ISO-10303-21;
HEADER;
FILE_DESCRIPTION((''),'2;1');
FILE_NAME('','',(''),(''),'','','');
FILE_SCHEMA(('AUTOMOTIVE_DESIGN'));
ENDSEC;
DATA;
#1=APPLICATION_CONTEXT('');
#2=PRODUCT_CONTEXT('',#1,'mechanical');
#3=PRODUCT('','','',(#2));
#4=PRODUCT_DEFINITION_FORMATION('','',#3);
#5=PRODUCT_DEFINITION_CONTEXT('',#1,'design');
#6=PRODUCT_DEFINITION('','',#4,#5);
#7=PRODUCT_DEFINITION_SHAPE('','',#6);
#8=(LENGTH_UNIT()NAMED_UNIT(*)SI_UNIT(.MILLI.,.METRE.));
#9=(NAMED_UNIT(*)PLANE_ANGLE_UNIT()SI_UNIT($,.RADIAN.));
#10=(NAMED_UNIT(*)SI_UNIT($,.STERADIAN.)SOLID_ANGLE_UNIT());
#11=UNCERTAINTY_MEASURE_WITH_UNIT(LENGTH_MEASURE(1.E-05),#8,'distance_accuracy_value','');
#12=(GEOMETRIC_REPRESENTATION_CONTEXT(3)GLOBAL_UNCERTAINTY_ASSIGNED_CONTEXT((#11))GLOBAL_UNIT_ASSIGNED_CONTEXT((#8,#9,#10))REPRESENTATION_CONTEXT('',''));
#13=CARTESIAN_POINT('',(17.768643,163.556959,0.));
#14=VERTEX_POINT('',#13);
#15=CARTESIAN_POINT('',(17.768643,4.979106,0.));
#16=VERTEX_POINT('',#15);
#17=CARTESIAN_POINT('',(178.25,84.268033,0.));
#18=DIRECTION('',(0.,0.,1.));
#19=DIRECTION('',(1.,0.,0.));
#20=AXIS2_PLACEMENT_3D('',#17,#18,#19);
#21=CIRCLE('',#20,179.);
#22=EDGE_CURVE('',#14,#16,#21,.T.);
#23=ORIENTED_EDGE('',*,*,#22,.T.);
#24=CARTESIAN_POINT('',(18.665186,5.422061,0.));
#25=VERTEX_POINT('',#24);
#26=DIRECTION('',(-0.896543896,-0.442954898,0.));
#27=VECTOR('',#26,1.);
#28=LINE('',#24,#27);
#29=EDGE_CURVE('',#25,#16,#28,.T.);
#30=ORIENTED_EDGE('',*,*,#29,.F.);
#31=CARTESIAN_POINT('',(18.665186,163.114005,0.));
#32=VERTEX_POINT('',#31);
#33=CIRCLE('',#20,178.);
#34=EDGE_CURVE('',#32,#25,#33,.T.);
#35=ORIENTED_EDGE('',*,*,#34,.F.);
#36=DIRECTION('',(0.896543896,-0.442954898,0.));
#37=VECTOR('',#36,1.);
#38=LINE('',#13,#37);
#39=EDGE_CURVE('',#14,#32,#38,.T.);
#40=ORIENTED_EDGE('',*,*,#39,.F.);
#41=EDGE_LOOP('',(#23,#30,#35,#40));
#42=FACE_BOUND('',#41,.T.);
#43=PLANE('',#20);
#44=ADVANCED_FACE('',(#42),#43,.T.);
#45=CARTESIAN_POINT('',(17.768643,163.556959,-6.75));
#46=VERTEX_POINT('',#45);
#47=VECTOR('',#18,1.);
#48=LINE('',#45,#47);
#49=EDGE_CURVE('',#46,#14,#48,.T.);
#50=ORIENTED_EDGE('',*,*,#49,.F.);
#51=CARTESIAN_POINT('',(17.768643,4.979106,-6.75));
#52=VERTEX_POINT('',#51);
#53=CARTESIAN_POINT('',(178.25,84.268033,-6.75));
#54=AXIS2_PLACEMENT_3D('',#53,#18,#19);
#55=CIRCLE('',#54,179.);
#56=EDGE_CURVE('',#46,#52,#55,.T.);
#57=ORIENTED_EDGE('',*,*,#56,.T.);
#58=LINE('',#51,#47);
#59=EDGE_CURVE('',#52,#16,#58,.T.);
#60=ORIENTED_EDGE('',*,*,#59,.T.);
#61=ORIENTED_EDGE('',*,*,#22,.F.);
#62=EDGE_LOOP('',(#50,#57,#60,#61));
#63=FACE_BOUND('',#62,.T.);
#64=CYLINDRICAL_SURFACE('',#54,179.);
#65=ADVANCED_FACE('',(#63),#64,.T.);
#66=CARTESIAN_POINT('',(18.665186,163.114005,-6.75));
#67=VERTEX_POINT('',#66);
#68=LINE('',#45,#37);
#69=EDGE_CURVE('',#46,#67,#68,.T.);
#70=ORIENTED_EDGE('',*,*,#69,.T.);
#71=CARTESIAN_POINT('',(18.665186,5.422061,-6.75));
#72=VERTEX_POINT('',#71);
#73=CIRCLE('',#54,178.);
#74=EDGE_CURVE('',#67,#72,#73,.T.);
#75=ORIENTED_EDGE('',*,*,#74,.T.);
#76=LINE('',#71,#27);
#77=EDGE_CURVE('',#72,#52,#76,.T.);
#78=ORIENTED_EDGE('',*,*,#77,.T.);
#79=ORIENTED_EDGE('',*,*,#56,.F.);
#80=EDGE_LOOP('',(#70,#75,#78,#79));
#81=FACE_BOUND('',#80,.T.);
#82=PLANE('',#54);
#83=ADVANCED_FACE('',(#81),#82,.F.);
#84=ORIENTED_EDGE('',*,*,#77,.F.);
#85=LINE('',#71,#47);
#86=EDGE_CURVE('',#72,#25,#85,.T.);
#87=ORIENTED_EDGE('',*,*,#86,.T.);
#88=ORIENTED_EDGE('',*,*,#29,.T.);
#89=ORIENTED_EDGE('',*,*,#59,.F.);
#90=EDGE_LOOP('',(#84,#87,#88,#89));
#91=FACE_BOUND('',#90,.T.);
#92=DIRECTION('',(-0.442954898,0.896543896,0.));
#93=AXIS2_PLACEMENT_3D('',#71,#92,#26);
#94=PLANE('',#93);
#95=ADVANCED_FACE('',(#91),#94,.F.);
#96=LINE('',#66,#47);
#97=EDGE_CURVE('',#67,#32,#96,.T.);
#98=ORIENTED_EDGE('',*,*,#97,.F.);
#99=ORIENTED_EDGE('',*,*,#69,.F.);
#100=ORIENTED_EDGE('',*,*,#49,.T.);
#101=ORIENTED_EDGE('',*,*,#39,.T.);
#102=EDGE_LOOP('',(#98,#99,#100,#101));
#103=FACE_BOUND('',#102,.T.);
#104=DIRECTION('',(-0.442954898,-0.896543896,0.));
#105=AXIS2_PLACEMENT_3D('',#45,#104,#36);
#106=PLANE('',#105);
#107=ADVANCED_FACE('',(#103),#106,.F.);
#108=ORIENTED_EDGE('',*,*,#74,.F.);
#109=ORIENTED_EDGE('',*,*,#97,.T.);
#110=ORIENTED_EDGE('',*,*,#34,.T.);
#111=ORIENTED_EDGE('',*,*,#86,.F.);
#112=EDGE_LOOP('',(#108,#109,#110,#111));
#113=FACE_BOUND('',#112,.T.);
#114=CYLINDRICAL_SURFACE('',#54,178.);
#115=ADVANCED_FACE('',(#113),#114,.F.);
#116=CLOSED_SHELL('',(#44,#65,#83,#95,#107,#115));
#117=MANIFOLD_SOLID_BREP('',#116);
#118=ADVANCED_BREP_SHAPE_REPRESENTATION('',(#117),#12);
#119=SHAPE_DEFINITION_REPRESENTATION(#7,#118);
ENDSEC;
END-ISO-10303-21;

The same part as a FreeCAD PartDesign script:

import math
import FreeCAD as App
import Part
import Sketcher
Q = App.Units.Quantity

doc = App.newDocument("Part")
body = doc.addObject("PartDesign::Body", "Body")

sketch1 = doc.addObject("Sketcher::SketchObject", "Sketch")
body.addObject(sketch1)
sketch1.AttachmentSupport = (doc.XY_Plane, [""])
sketch1.MapMode = "FlatFace"
sketch1.addGeometry(Part.ArcOfCircle(Part.Circle(App.Vector(178.3, 84.3, 0), App.Vector(0, 0, 1), 178), math.radians(154), math.radians(206)), False)
sketch1.addGeometry(Part.LineSegment(App.Vector(18.7, 163.1, 0), App.Vector(17.8, 163.6, 0)), False)
sketch1.addGeometry(Part.ArcOfCircle(Part.Circle(App.Vector(178.2, 84.3, 0), App.Vector(0, 0, 1), 179), math.radians(154), math.radians(206)), False)
sketch1.addGeometry(Part.LineSegment(App.Vector(17.8, 5, 0), App.Vector(18.7, 5.4, 0)), False)
sketch1.addConstraint(Sketcher.Constraint("Coincident", 0, 1, 1, 1))
sketch1.addConstraint(Sketcher.Constraint("Coincident", 1, 2, 2, 1))
sketch1.addConstraint(Sketcher.Constraint("Coincident", 2, 2, 3, 1))
sketch1.addConstraint(Sketcher.Constraint("Coincident", 3, 2, 0, 2))
sketch1.addConstraint(Sketcher.Constraint("Coincident", 2, 3, 0, 3))
sketch1.addConstraint(Sketcher.Constraint("Vertical", 1, 2, 2, 2))
sketch1.addConstraint(Sketcher.Constraint("Vertical", 0, 1, 3, 2))
sketch1.addConstraint(Sketcher.Constraint("Radius", 0, Q("178 mm")))
sketch1.addConstraint(Sketcher.Constraint("Radius", 2, Q("179 mm")))
sketch1.addConstraint(Sketcher.Constraint("DistanceX", -1, 1, 0, 3, Q("178.25 mm")))
sketch1.addConstraint(Sketcher.Constraint("DistanceY", 2, 2, 0, 1, Q("158.134899 mm")))
sketch1.addConstraint(Sketcher.Constraint("DistanceY", -1, 1, 1, 2, Q("163.556959 mm")))
sketch1.addConstraint(Sketcher.Constraint("DistanceY", 3, 2, 2, 3, Q("78.845972 mm")))
pad1 = doc.addObject("PartDesign::Pad", "Pad")
body.addObject(pad1)
pad1.Profile = sketch1
pad1.Length = 6.75
pad1.Reversed = True

doc.recompute()
